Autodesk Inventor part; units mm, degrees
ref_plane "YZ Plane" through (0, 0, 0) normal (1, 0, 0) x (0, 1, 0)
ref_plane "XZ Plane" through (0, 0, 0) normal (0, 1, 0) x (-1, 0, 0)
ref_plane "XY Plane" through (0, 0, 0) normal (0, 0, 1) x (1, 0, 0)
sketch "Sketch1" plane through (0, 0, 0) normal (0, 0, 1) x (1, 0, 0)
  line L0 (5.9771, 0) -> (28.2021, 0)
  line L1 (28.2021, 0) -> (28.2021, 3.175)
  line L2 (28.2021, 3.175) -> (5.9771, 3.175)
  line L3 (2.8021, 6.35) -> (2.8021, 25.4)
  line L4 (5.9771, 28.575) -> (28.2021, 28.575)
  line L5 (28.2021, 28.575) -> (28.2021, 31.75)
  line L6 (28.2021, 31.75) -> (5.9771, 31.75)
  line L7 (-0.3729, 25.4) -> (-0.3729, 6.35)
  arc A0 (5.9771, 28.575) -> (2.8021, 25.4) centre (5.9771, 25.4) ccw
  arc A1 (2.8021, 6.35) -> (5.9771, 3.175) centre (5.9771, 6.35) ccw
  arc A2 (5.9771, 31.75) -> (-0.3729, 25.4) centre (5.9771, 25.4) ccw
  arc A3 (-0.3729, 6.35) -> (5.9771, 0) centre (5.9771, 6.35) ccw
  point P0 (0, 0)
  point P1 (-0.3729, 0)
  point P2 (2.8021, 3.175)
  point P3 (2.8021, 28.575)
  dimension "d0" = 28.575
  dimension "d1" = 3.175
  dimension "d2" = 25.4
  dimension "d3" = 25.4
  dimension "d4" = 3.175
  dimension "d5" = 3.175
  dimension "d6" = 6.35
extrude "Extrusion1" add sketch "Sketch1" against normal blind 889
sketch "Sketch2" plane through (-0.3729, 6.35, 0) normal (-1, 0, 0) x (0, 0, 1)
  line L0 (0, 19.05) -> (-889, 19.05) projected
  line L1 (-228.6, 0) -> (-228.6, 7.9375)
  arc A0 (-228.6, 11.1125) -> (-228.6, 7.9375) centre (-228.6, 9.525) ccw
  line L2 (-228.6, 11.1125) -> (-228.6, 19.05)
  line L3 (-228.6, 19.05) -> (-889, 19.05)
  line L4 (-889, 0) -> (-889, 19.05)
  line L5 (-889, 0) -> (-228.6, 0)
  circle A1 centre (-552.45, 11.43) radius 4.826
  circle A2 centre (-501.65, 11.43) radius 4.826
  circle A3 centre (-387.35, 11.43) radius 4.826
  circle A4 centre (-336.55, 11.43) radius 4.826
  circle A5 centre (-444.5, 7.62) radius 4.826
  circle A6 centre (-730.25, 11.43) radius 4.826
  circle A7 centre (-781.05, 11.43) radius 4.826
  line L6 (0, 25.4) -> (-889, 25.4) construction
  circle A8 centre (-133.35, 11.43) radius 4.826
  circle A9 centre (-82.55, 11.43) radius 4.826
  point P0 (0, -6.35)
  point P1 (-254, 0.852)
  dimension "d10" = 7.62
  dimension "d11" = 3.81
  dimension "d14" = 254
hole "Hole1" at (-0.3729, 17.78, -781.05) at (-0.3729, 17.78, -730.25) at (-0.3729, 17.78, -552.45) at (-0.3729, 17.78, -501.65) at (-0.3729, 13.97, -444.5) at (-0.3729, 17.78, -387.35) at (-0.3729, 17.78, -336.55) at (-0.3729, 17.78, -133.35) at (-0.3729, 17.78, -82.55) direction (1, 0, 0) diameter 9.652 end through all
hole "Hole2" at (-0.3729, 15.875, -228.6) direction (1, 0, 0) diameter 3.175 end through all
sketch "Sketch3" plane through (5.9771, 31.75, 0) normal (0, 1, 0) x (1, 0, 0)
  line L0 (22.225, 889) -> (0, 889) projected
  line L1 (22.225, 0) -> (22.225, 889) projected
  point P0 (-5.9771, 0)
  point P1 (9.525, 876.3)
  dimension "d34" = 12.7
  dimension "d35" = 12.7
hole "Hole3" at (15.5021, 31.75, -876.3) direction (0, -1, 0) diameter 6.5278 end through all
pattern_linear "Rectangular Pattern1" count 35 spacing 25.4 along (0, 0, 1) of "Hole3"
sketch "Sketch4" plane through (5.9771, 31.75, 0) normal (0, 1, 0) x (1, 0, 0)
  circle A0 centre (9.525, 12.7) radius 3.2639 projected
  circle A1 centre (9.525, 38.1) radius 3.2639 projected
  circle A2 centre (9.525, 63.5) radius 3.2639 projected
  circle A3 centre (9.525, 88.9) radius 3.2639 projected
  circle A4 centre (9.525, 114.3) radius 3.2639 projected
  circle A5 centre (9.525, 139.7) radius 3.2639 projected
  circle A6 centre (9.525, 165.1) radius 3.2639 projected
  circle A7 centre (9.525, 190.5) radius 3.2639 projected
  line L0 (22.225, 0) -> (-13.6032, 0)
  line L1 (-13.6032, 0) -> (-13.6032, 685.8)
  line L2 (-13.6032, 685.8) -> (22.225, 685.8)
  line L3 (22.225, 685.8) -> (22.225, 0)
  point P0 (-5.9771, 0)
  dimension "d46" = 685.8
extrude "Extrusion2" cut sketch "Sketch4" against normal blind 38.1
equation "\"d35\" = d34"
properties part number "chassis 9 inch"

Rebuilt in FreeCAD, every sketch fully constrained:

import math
import FreeCAD as App
import Part
import Sketcher
from FreeCAD import Vector
Q = App.Units.Quantity


def add_polygon(sketch, points):
    """Adds a closed chain of lines whose ends are joined by coincident constraints."""
    first, n = sketch.GeometryCount, len(points)
    for a, b in zip(points, points[1:] + points[:1]):
        sketch.addGeometry(Part.LineSegment(App.Vector(*a, 0), App.Vector(*b, 0)), False)
    for i in range(n):
        sketch.addConstraint(Sketcher.Constraint("Coincident", first + i, 2, first + (i + 1) % n, 1))

doc = App.newDocument("Part")
params = doc.addObject("Spreadsheet::Sheet", "Params")
for row, (alias, value) in enumerate([
    ("sketch1_radius", "0.25 in"),
    ("sketch1_radius2", "0.125 in"),
    ("pad1_length", "35 in"),
    ("sketch2_diameter", "0.38 in"),
    ("hole_diameter", "0.38 in"),
    ("sketch3_diameter", "0.125 in"),
    ("hole2_diameter", "0.125 in"),
    ("sketch4_diameter", "0.257 in"),
    ("hole3_diameter", "0.257 in"),
    ("linearpattern_pitch", "1 in"),
    ("sketch5_height", "27 in"),
    ("sketch5_diameter", "0.257 in"),
    ("pocket1_length", "1.5 in"),
], start=1):
    params.set(f"A{row}", alias)
    params.set(f"B{row}", "=" + value)
    params.setAlias(f"B{row}", alias)

body = doc.addObject("PartDesign::Body", "Body")

# Sketch on XY plane
sketch1 = doc.addObject("Sketcher::SketchObject", "Sketch")
body.addObject(sketch1)
sketch1.AttachmentSupport = (doc.XY_Plane, [""])
sketch1.MapMode = "FlatFace"
sketch1.addGeometry([
    Part.ArcOfCircle(Part.Circle(Vector(5.9771, 6.35, 0), Vector(0, 0, 1), 6.35), math.radians(180), math.radians(270)),  # 0
    Part.LineSegment(Vector(5.9771, 0, 0), Vector(28.2021, 0, 0)),  # 1
    Part.LineSegment(Vector(28.2021, 0, 0), Vector(28.2021, 3.175, 0)),  # 2
    Part.LineSegment(Vector(28.2021, 3.175, 0), Vector(5.9771, 3.175, 0)),  # 3
    Part.ArcOfCircle(Part.Circle(Vector(5.9771, 6.35, 0), Vector(0, 0, 1), 3.175), math.radians(180), math.radians(270)),  # 4
    Part.LineSegment(Vector(2.8021, 6.35, 0), Vector(2.8021, 25.4, 0)),  # 5
    Part.ArcOfCircle(Part.Circle(Vector(5.9771, 25.4, 0), Vector(0, 0, 1), 3.175), math.radians(90), math.radians(180)),  # 6
    Part.LineSegment(Vector(5.9771, 28.575, 0), Vector(28.2021, 28.575, 0)),  # 7
    Part.LineSegment(Vector(28.2021, 28.575, 0), Vector(28.2021, 31.75, 0)),  # 8
    Part.LineSegment(Vector(28.2021, 31.75, 0), Vector(5.9771, 31.75, 0)),  # 9
    Part.ArcOfCircle(Part.Circle(Vector(5.9771, 25.4, 0), Vector(0, 0, 1), 6.35), math.radians(90), math.radians(180)),  # 10
    Part.LineSegment(Vector(-0.3729, 25.4, 0), Vector(-0.3729, 6.35, 0)),  # 11
], False)
sketch1.addConstraint([
    Sketcher.Constraint("Tangent", 0, 2, 1, 1),
    Sketcher.Constraint("Coincident", 1, 2, 2, 1),
    Sketcher.Constraint("Coincident", 2, 2, 3, 1),
    Sketcher.Constraint("Tangent", 3, 2, 4, 2),
    Sketcher.Constraint("Tangent", 4, 1, 5, 1),
    Sketcher.Constraint("Tangent", 5, 2, 6, 2),
    Sketcher.Constraint("Tangent", 6, 1, 7, 1),
    Sketcher.Constraint("Coincident", 7, 2, 8, 1),
    Sketcher.Constraint("Coincident", 8, 2, 9, 1),
    Sketcher.Constraint("Tangent", 9, 2, 10, 1),
    Sketcher.Constraint("Tangent", 10, 2, 11, 1),
    Sketcher.Constraint("Tangent", 11, 2, 0, 1),
    Sketcher.Constraint("Horizontal", 1),
    Sketcher.Constraint("Vertical", 2),
    Sketcher.Constraint("Horizontal", 3),
    Sketcher.Constraint("Vertical", 5),
    Sketcher.Constraint("Horizontal", 7),
    Sketcher.Constraint("Vertical", 8),
    Sketcher.Constraint("Horizontal", 9),
    Sketcher.Constraint("Vertical", 11),
    Sketcher.Constraint("Coincident", 4, 3, 0, 3),
    Sketcher.Constraint("Coincident", 10, 3, 6, 3),
    Sketcher.Constraint("Equal", 4, 6),
    Sketcher.Constraint("PointOnObject", 0, 2, -1),
    Sketcher.Constraint("Vertical", 2, 2, 7, 2),
    Sketcher.Constraint("Radius", 0, Q("0.25 in")),
    Sketcher.Constraint("DistanceY", -1, 1, 6, 3, Q("1 in")),
    Sketcher.Constraint("Radius", 4, Q("0.125 in")),
    Sketcher.Constraint("DistanceX", 5, 2, 7, 2, Q("1 in")),
    Sketcher.Constraint("DistanceX", -1, 1, 0, 3, 5.977),
])
sketch1.setExpression("Constraints[25]", "Params.sketch1_radius")
sketch1.setExpression("Constraints[27]", "Params.sketch1_radius2")
pad1 = doc.addObject("PartDesign::Pad", "Pad")
body.addObject(pad1)
pad1.Profile = sketch1
pad1.setExpression("Length", "Params.pad1_length")
pad1.Reversed = True

# Sketch on YZ plane
sketch2 = doc.addObject("Sketcher::SketchObject", "Sketch001")
body.addObject(sketch2)
sketch2.AttachmentSupport = (doc.YZ_Plane, [""])
sketch2.MapMode = "FlatFace"
sketch2.AttachmentOffset = App.Placement(Vector(0, 0, -0.3729), App.Rotation())
sketch2.addGeometry([
    Part.Circle(Vector(17.78, -781.05, 0), Vector(0, 0, 1), 4.826),  # 0
    Part.Circle(Vector(17.78, -730.25, 0), Vector(0, 0, 1), 4.826),  # 1
    Part.Circle(Vector(17.78, -552.45, 0), Vector(0, 0, 1), 4.826),  # 2
    Part.Circle(Vector(17.78, -501.65, 0), Vector(0, 0, 1), 4.826),  # 3
    Part.Circle(Vector(13.97, -444.5, 0), Vector(0, 0, 1), 4.826),  # 4
    Part.Circle(Vector(17.78, -387.35, 0), Vector(0, 0, 1), 4.826),  # 5
    Part.Circle(Vector(17.78, -336.55, 0), Vector(0, 0, 1), 4.826),  # 6
    Part.Circle(Vector(17.78, -133.35, 0), Vector(0, 0, 1), 4.826),  # 7
    Part.Circle(Vector(17.78, -82.55, 0), Vector(0, 0, 1), 4.826),  # 8
], False)
sketch2.addConstraint([
    Sketcher.Constraint("Equal", 0, 1),
    Sketcher.Constraint("Equal", 1, 2),
    Sketcher.Constraint("Equal", 2, 3),
    Sketcher.Constraint("Equal", 3, 4),
    Sketcher.Constraint("Equal", 4, 5),
    Sketcher.Constraint("Equal", 5, 6),
    Sketcher.Constraint("Equal", 6, 7),
    Sketcher.Constraint("Equal", 7, 8),
    Sketcher.Constraint("Vertical", 0, 3, 1, 3),
    Sketcher.Constraint("Vertical", 1, 3, 2, 3),
    Sketcher.Constraint("Vertical", 2, 3, 3, 3),
    Sketcher.Constraint("Vertical", 3, 3, 5, 3),
    Sketcher.Constraint("Vertical", 5, 3, 6, 3),
    Sketcher.Constraint("Vertical", 6, 3, 7, 3),
    Sketcher.Constraint("Vertical", 7, 3, 8, 3),
    Sketcher.Constraint("Diameter", 0, Q("0.38 in")),
    Sketcher.Constraint("DistanceY", 0, 3, 1, 3, Q("2 in")),
    Sketcher.Constraint("DistanceY", 1, 3, 2, 3, Q("7 in")),
    Sketcher.Constraint("DistanceY", 2, 3, 3, 3, Q("2 in")),
    Sketcher.Constraint("DistanceY", 5, 3, 6, 3, Q("2 in")),
    Sketcher.Constraint("DistanceY", 6, 3, 7, 3, Q("8 in")),
    Sketcher.Constraint("DistanceY", 7, 3, 8, 3, Q("2 in")),
    Sketcher.Constraint("DistanceX", -1, 1, 0, 3, Q("0.7 in")),
    Sketcher.Constraint("DistanceY", 4, 3, -1, 1, Q("17.5 in")),
    Sketcher.Constraint("DistanceY", 3, 3, 5, 3, Q("4.5 in")),
    Sketcher.Constraint("DistanceY", 0, 3, -1, 1, Q("30.75 in")),
    Sketcher.Constraint("DistanceX", -1, 1, 4, 3, Q("0.55 in")),
])
sketch2.setExpression("Constraints[15]", "Params.sketch2_diameter")
doc.recompute()
hole = doc.addObject("PartDesign::Hole", "Hole")
body.addObject(hole)
hole.Profile = sketch2
hole.ThreadType = "None"
hole.setExpression("Diameter", "Params.hole_diameter")
hole.DepthType = "ThroughAll"
hole.Reversed = True

# Sketch on YZ plane
sketch3 = doc.addObject("Sketcher::SketchObject", "Sketch002")
body.addObject(sketch3)
sketch3.AttachmentSupport = (doc.YZ_Plane, [""])
sketch3.MapMode = "FlatFace"
sketch3.AttachmentOffset = App.Placement(Vector(0, 0, -0.3729), App.Rotation())
sketch3.addGeometry(Part.Circle(Vector(15.875, -228.6, 0), Vector(0, 0, 1), 1.5875), False)
sketch3.addConstraint([
    Sketcher.Constraint("Diameter", 0, Q("0.125 in")),
    Sketcher.Constraint("DistanceY", 0, 3, -1, 1, Q("9 in")),
    Sketcher.Constraint("DistanceX", -1, 1, 0, 3, Q("0.625 in")),
])
sketch3.setExpression("Constraints[0]", "Params.sketch3_diameter")
doc.recompute()
hole2 = doc.addObject("PartDesign::Hole", "Hole001")
body.addObject(hole2)
hole2.Profile = sketch3
hole2.ThreadType = "None"
hole2.setExpression("Diameter", "Params.hole2_diameter")
hole2.DepthType = "ThroughAll"
hole2.Reversed = True

# Sketch on XZ plane
sketch4 = doc.addObject("Sketcher::SketchObject", "Sketch003")
body.addObject(sketch4)
sketch4.AttachmentSupport = (doc.XZ_Plane, [""])
sketch4.MapMode = "FlatFace"
sketch4.AttachmentOffset = App.Placement(Vector(0, 0, -1.25 * 25.4), App.Rotation())
sketch4.addGeometry(Part.Circle(Vector(15.5021, -876.3, 0), Vector(0, 0, 1), 3.2639), False)
sketch4.addConstraint([
    Sketcher.Constraint("Diameter", 0, Q("0.257 in")),
    Sketcher.Constraint("DistanceY", 0, 3, -1, 1, Q("34.5 in")),
    Sketcher.Constraint("DistanceX", -1, 1, 0, 3, 15.502),
])
sketch4.setExpression("Constraints[0]", "Params.sketch4_diameter")
doc.recompute()
hole3 = doc.addObject("PartDesign::Hole", "Hole002")
body.addObject(hole3)
hole3.Profile = sketch4
hole3.ThreadType = "None"
hole3.setExpression("Diameter", "Params.hole3_diameter")
hole3.DepthType = "ThroughAll"
hole3.Reversed = True
doc.recompute()

linearpattern = doc.addObject("PartDesign::LinearPattern", "LinearPattern")
body.addObject(linearpattern)
linearpattern.Originals = [hole3]
linearpattern.Direction = (doc.Z_Axis, [""])
linearpattern.Mode = "offset"
linearpattern.setExpression("Offset", "Params.linearpattern_pitch")
linearpattern.Occurrences = 35
body.Tip = linearpattern

# Sketch on XZ plane
sketch5 = doc.addObject("Sketcher::SketchObject", "Sketch004")
body.addObject(sketch5)
sketch5.AttachmentSupport = (doc.XZ_Plane, [""])
sketch5.MapMode = "FlatFace"
sketch5.AttachmentOffset = App.Placement(Vector(0, 0, -1.25 * 25.4), App.Rotation())
add_polygon(sketch5, [(-7.6261, 0), (28.2021, 0), (28.2021, -685.8), (-7.6261, -685.8)])  # lines 0-3
sketch5.addGeometry(Part.Circle(Vector(15.5021, -12.7, 0), Vector(0, 0, 1), 3.2639), False)  # 4
sketch5.addGeometry(Part.Circle(Vector(15.5021, -38.1, 0), Vector(0, 0, 1), 3.2639), False)  # 5
sketch5.addGeometry(Part.Circle(Vector(15.5021, -63.5, 0), Vector(0, 0, 1), 3.2639), False)  # 6
sketch5.addGeometry(Part.Circle(Vector(15.5021, -88.9, 0), Vector(0, 0, 1), 3.2639), False)  # 7
sketch5.addGeometry(Part.Circle(Vector(15.5021, -114.3, 0), Vector(0, 0, 1), 3.2639), False)  # 8
sketch5.addGeometry(Part.Circle(Vector(15.5021, -139.7, 0), Vector(0, 0, 1), 3.2639), False)  # 9
sketch5.addGeometry(Part.Circle(Vector(15.5021, -165.1, 0), Vector(0, 0, 1), 3.2639), False)  # 10
sketch5.addGeometry(Part.Circle(Vector(15.5021, -190.5, 0), Vector(0, 0, 1), 3.2639), False)  # 11
sketch5.addConstraint([
    Sketcher.Constraint("Horizontal", 0),
    Sketcher.Constraint("Vertical", 1),
    Sketcher.Constraint("Horizontal", 2),
    Sketcher.Constraint("Vertical", 3),
    Sketcher.Constraint("Equal", 4, 5),
    Sketcher.Constraint("Equal", 5, 6),
    Sketcher.Constraint("Equal", 6, 7),
    Sketcher.Constraint("Equal", 7, 8),
    Sketcher.Constraint("Equal", 8, 9),
    Sketcher.Constraint("Equal", 9, 10),
    Sketcher.Constraint("Equal", 10, 11),
    Sketcher.Constraint("PointOnObject", 0, 2, -1),
    Sketcher.Constraint("Vertical", 4, 3, 5, 3),
    Sketcher.Constraint("Vertical", 5, 3, 6, 3),
    Sketcher.Constraint("Vertical", 6, 3, 7, 3),
    Sketcher.Constraint("Vertical", 7, 3, 8, 3),
    Sketcher.Constraint("Vertical", 8, 3, 9, 3),
    Sketcher.Constraint("Vertical", 9, 3, 10, 3),
    Sketcher.Constraint("Vertical", 10, 3, 11, 3),
    Sketcher.Constraint("DistanceY", 1, 2, 1, 1, Q("27 in")),
    Sketcher.Constraint("Diameter", 4, Q("0.257 in")),
    Sketcher.Constraint("DistanceY", 5, 3, 4, 3, Q("1 in")),
    Sketcher.Constraint("DistanceY", 6, 3, 5, 3, Q("1 in")),
    Sketcher.Constraint("DistanceY", 7, 3, 6, 3, Q("1 in")),
    Sketcher.Constraint("DistanceY", 8, 3, 7, 3, Q("1 in")),
    Sketcher.Constraint("DistanceY", 9, 3, 8, 3, Q("1 in")),
    Sketcher.Constraint("DistanceY", 10, 3, 9, 3, Q("1 in")),
    Sketcher.Constraint("DistanceY", 11, 3, 10, 3, Q("1 in")),
    Sketcher.Constraint("DistanceY", 4, 3, -1, 1, Q("0.5 in")),
    Sketcher.Constraint("DistanceX", 4, 3, 0, 2, Q("0.5 in")),
    Sketcher.Constraint("DistanceX", 0, 1, 0, 2, 35.8282),
    Sketcher.Constraint("DistanceX", -1, 1, 4, 3, 15.502),
])
sketch5.setExpression("Constraints[23]", "Params.sketch5_height")
sketch5.setExpression("Constraints[24]", "Params.sketch5_diameter")
pocket1 = doc.addObject("PartDesign::Pocket", "Pocket")
body.addObject(pocket1)
pocket1.Profile = sketch5
pocket1.setExpression("Length", "Params.pocket1_length")
pocket1.Reversed = True

doc.recompute()
